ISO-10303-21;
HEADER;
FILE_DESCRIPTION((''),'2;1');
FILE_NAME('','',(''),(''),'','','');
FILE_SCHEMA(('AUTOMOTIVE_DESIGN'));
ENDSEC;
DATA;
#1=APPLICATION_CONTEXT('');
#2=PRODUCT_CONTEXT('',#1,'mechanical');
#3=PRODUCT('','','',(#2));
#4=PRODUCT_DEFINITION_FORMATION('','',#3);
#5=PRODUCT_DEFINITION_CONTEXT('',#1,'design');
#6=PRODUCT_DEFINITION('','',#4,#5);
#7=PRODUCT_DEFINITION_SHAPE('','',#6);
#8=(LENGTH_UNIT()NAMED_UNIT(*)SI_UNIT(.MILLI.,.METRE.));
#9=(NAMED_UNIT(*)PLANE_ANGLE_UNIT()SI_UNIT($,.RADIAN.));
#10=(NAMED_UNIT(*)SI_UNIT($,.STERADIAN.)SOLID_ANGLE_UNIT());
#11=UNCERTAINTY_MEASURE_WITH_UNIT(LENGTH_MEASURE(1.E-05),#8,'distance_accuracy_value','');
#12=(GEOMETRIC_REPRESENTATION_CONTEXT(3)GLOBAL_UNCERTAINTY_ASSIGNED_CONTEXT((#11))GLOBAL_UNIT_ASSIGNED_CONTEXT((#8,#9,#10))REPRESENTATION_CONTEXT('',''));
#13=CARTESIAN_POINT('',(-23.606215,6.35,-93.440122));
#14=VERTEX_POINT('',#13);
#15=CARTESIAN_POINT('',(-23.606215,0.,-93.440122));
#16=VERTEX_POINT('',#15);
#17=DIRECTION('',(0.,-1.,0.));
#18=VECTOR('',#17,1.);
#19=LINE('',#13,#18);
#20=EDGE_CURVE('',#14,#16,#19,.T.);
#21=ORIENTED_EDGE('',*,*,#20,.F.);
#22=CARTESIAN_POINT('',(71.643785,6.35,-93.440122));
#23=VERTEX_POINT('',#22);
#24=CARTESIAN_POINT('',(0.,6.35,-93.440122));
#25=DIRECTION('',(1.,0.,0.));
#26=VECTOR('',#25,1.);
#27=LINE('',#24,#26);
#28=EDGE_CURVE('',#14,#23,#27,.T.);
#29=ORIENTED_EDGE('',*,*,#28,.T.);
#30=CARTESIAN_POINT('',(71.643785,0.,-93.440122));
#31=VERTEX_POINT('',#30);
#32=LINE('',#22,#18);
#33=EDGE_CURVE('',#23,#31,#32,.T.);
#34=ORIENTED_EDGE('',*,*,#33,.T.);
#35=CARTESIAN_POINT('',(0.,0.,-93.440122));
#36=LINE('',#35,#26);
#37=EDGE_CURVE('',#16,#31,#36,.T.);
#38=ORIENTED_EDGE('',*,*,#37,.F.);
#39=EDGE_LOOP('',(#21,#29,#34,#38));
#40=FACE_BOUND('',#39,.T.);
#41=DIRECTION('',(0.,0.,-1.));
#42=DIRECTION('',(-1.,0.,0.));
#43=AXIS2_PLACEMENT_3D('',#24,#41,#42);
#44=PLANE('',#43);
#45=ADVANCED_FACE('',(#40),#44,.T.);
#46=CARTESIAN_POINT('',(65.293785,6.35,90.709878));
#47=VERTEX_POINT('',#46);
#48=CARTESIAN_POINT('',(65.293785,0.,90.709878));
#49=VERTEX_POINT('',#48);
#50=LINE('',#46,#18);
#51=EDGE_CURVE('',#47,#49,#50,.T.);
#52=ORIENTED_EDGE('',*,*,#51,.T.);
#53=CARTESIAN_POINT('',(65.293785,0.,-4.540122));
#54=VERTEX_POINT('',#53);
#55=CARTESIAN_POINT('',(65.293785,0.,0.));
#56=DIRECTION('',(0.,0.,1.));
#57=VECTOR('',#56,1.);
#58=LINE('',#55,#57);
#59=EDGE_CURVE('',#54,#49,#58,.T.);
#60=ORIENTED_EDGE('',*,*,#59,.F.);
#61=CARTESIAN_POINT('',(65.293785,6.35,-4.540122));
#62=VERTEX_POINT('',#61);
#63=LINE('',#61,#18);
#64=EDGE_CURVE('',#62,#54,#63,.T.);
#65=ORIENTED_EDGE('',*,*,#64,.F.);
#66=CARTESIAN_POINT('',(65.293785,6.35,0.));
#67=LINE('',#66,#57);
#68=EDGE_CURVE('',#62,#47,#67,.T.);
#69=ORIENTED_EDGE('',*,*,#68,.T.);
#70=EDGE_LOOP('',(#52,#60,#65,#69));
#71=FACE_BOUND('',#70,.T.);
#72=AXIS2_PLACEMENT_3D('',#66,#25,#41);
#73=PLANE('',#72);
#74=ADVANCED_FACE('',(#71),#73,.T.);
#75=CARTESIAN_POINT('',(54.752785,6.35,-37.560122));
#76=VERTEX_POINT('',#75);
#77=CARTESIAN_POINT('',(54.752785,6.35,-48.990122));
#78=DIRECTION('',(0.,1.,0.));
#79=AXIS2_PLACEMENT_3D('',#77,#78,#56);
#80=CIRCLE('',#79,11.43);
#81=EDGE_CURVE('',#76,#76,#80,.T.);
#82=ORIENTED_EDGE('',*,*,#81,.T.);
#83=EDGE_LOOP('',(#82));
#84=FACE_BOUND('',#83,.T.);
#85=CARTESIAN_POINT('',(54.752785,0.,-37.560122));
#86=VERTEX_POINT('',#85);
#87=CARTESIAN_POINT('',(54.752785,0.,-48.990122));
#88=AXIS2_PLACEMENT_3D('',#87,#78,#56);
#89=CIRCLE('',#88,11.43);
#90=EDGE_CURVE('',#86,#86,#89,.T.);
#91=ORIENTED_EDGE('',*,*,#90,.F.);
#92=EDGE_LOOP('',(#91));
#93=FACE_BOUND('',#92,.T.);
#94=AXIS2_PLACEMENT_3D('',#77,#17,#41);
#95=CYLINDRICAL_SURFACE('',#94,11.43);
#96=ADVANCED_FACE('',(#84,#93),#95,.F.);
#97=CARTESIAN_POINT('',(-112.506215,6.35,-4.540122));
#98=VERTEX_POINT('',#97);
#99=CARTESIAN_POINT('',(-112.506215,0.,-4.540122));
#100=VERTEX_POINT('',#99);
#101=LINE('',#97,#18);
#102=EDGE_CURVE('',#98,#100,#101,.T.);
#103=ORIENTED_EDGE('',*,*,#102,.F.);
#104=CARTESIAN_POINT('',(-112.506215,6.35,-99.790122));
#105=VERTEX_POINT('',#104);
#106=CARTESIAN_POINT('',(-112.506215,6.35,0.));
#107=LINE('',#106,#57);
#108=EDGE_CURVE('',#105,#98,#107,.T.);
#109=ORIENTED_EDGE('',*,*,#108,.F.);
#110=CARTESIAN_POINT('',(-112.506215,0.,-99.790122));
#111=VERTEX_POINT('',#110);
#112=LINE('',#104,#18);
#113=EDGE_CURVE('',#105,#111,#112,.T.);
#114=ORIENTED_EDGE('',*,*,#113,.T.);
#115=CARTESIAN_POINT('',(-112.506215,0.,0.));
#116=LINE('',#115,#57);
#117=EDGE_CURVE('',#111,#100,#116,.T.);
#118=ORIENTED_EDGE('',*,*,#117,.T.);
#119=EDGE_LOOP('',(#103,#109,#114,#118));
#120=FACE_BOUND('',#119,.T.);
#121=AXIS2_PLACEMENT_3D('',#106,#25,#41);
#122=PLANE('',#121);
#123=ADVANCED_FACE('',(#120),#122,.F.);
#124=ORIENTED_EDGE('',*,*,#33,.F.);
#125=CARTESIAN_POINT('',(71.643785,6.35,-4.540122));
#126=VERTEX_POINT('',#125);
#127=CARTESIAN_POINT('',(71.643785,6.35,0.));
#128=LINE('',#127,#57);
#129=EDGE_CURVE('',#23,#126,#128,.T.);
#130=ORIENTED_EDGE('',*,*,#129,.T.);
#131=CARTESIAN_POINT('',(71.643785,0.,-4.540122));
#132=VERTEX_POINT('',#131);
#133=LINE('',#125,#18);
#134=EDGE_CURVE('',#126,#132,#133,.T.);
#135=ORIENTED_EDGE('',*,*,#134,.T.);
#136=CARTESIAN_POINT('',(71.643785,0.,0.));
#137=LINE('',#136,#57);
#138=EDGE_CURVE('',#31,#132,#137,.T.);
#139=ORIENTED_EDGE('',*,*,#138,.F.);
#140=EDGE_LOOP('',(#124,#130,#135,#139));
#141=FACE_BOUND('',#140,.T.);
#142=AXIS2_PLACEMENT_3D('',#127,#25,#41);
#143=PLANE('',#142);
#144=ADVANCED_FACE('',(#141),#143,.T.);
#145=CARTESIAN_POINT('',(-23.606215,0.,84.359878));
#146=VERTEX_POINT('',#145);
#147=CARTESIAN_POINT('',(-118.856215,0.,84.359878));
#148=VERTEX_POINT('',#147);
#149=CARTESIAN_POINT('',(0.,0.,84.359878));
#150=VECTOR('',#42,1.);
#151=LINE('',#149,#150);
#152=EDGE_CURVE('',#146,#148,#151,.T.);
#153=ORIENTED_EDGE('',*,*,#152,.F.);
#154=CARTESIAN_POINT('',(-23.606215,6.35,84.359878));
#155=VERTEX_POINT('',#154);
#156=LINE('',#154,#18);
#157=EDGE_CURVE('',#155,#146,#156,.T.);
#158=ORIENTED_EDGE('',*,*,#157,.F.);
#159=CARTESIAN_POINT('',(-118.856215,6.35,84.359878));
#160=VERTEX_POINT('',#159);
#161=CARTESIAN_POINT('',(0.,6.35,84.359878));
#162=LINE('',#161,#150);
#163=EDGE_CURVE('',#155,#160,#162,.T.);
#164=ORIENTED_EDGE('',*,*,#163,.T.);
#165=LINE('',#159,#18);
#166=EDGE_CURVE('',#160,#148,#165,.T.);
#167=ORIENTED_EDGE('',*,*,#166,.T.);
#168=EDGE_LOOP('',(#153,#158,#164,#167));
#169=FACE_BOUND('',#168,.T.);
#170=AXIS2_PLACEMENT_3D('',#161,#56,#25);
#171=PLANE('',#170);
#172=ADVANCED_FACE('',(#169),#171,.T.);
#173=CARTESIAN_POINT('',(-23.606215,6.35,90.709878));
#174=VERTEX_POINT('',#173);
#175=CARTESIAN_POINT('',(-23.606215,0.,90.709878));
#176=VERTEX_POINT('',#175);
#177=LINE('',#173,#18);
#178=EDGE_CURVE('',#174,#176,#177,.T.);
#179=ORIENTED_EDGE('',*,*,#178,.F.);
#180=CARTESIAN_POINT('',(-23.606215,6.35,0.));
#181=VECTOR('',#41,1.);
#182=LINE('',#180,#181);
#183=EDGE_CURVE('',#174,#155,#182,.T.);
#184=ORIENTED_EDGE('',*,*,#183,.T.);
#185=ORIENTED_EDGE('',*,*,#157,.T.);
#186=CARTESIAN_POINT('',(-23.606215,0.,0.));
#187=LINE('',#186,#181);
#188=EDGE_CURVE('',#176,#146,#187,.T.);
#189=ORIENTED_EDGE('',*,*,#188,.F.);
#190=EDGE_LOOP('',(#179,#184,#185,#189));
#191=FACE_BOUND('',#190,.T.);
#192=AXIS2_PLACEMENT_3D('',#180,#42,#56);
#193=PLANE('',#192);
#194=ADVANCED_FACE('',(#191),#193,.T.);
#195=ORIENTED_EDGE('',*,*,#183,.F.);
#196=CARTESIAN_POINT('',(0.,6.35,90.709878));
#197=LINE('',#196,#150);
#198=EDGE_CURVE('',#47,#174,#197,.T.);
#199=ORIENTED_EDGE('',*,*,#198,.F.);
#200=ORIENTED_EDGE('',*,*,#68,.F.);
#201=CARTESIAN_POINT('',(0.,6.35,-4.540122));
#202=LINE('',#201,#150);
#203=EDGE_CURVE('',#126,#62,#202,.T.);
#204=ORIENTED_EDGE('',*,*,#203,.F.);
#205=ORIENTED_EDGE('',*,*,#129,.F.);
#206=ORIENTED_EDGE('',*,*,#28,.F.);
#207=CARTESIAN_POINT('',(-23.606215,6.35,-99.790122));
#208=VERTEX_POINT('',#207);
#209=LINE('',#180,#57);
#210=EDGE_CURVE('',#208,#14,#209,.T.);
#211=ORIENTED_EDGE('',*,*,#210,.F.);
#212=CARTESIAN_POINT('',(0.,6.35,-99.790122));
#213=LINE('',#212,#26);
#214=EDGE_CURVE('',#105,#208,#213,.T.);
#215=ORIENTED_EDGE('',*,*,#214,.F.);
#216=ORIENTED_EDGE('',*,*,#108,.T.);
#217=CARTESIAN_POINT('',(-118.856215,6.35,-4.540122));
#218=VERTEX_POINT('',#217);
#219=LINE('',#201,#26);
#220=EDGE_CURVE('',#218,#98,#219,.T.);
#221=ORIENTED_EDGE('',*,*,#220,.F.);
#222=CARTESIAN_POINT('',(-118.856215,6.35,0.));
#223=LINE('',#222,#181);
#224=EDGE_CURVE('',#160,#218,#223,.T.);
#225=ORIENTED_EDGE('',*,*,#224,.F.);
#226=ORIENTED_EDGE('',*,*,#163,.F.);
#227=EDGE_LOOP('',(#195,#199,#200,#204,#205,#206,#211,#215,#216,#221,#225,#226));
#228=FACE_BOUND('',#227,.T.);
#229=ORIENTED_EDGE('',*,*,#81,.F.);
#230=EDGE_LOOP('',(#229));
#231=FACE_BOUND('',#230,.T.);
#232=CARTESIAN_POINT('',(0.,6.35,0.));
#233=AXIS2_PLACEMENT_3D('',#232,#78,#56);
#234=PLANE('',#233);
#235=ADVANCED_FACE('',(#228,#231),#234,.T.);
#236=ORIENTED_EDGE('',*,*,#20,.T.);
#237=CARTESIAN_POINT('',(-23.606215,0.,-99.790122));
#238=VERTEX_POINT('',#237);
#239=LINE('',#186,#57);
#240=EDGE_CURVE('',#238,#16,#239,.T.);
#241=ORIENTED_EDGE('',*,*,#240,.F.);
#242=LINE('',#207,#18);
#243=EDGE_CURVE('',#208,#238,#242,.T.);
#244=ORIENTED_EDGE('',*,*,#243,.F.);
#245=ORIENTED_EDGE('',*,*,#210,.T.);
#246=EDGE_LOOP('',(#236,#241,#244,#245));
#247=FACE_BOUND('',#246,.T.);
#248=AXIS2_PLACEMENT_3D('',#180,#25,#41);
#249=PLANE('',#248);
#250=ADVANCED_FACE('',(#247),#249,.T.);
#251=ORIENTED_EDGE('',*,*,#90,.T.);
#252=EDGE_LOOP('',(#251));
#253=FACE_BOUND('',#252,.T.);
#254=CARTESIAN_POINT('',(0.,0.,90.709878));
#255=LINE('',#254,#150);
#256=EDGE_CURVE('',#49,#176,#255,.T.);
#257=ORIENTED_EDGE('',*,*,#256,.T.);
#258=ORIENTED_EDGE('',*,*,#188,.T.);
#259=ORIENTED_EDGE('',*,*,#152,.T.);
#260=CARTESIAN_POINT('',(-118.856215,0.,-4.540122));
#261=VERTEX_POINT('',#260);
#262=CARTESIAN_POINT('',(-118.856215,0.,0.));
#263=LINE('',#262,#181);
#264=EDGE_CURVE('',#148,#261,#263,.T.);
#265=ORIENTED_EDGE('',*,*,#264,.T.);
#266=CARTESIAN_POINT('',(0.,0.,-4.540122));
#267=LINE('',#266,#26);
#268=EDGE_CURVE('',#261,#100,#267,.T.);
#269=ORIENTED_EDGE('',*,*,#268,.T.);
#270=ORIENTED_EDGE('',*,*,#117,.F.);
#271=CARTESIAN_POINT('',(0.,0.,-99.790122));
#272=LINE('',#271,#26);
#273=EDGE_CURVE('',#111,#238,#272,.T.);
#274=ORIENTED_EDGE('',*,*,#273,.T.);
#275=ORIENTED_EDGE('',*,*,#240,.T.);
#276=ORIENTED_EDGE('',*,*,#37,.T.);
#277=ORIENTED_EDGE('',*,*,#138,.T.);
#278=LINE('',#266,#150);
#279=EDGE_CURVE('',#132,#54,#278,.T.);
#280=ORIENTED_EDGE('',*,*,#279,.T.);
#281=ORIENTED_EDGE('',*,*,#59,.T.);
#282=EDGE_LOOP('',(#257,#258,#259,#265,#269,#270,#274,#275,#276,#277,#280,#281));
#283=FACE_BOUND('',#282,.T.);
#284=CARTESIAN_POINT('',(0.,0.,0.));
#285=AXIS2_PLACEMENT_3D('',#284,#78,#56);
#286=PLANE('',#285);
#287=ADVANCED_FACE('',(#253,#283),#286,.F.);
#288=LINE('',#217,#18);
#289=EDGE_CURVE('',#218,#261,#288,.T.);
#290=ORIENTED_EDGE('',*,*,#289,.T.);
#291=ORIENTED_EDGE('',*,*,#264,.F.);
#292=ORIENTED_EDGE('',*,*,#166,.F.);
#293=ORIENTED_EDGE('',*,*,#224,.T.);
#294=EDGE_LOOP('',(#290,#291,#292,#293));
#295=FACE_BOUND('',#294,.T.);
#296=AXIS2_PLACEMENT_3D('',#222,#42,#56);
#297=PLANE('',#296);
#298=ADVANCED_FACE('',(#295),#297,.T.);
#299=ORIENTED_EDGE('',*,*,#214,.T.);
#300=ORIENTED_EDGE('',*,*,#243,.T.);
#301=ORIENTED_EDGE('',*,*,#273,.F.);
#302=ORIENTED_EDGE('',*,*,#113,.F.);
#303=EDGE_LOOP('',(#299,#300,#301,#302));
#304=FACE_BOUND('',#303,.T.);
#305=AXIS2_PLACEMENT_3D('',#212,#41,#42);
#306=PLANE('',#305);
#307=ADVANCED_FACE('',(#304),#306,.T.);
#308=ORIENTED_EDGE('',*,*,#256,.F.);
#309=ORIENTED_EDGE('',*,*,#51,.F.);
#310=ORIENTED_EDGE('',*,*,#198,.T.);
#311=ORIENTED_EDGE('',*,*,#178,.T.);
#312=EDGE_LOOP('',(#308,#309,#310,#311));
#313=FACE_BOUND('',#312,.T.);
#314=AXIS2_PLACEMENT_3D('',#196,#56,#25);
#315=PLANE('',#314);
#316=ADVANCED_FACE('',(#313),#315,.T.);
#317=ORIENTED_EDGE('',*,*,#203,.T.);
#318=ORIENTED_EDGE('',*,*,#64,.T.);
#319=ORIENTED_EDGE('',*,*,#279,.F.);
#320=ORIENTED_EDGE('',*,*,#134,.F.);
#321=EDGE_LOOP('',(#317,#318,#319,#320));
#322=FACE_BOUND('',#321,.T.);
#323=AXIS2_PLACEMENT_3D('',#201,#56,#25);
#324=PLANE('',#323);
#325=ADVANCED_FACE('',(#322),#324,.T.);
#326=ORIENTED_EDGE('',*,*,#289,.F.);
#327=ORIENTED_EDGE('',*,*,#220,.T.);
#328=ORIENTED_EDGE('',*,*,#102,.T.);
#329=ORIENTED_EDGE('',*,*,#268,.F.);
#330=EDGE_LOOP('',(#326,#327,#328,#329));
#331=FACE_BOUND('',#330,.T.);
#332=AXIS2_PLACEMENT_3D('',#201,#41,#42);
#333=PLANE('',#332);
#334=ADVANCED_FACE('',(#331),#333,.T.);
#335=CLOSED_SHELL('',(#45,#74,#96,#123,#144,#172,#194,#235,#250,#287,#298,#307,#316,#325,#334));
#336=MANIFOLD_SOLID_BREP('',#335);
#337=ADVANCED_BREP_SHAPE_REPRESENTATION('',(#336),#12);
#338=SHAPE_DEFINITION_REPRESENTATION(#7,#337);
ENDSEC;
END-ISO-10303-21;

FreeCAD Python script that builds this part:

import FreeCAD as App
import Part
import Sketcher
from FreeCAD import Vector
Q = App.Units.Quantity


def add_polygon(sketch, points):
    """Adds a closed chain of lines whose ends are joined by coincident constraints."""
    first, n = sketch.GeometryCount, len(points)
    for a, b in zip(points, points[1:] + points[:1]):
        sketch.addGeometry(Part.LineSegment(App.Vector(*a, 0), App.Vector(*b, 0)), False)
    for i in range(n):
        sketch.addConstraint(Sketcher.Constraint("Coincident", first + i, 2, first + (i + 1) % n, 1))

doc = App.newDocument("Part")
body = doc.addObject("PartDesign::Body", "Body")

sketch1 = doc.addObject("Sketcher::SketchObject", "Sketch")
body.addObject(sketch1)
sketch1.AttachmentSupport = (doc.XZ_Plane, [""])
sketch1.MapMode = "FlatFace"
add_polygon(sketch1, [(-112.506215, -99.790122), (-112.506215, -4.540122), (-118.856215, -4.540122), (-118.856215, 84.359878), (-23.606215, 84.359878), (-23.606215, 90.709878), (65.293785, 90.709878), (65.293785, -4.540122), (71.643785, -4.540122), (71.643785, -93.440122), (-23.606215, -93.440122), (-23.606215, -99.790122)])
sketch1.addGeometry(Part.Circle(Vector(54.752785, -48.990122, 0), Vector(0, 0, 1), 11.43), False)
sketch1.addConstraint([
    Sketcher.Constraint("Vertical", 0),
    Sketcher.Constraint("Horizontal", 1),
    Sketcher.Constraint("Vertical", 2),
    Sketcher.Constraint("Horizontal", 3),
    Sketcher.Constraint("Vertical", 4),
    Sketcher.Constraint("Horizontal", 5),
    Sketcher.Constraint("Vertical", 6),
    Sketcher.Constraint("Horizontal", 7),
    Sketcher.Constraint("Vertical", 8),
    Sketcher.Constraint("Horizontal", 9),
    Sketcher.Constraint("Vertical", 10),
    Sketcher.Constraint("Horizontal", 11),
    Sketcher.Constraint("Horizontal", 1, 2, 6, 2),
    Sketcher.Constraint("Vertical", 4, 2, 9, 2),
    Sketcher.Constraint("Equal", 1, 7),
    Sketcher.Constraint("Equal", 3, 9),
    Sketcher.Constraint("Equal", 9, 0),
    Sketcher.Constraint("Equal", 11, 2),
    Sketcher.Constraint("Equal", 7, 4),
    Sketcher.Constraint("Equal", 2, 8),
    Sketcher.Constraint("Diameter", 12, Q("0.9 in")),
    Sketcher.Constraint("DistanceX", 5, 1, 5, 2, Q("3.5 in")),
    Sketcher.Constraint("DistanceY", 10, 2, 12, 3, Q("2 in")),
    Sketcher.Constraint("DistanceX", 1, 2, 1, 1, Q("0.25 in")),
    Sketcher.Constraint("DistanceX", 0, 2, 12, 3, Q("6.585 in")),
    Sketcher.Constraint("DistanceY", 12, 3, -1, 1, Q("48.990122 mm")),
    Sketcher.Constraint("DistanceX", -1, 1, 12, 3, Q("54.752785 mm")),
])
pad1 = doc.addObject("PartDesign::Pad", "Pad")
body.addObject(pad1)
pad1.Profile = sketch1
pad1.Length = Q("0.25 in")
pad1.Reversed = True

doc.recompute()
